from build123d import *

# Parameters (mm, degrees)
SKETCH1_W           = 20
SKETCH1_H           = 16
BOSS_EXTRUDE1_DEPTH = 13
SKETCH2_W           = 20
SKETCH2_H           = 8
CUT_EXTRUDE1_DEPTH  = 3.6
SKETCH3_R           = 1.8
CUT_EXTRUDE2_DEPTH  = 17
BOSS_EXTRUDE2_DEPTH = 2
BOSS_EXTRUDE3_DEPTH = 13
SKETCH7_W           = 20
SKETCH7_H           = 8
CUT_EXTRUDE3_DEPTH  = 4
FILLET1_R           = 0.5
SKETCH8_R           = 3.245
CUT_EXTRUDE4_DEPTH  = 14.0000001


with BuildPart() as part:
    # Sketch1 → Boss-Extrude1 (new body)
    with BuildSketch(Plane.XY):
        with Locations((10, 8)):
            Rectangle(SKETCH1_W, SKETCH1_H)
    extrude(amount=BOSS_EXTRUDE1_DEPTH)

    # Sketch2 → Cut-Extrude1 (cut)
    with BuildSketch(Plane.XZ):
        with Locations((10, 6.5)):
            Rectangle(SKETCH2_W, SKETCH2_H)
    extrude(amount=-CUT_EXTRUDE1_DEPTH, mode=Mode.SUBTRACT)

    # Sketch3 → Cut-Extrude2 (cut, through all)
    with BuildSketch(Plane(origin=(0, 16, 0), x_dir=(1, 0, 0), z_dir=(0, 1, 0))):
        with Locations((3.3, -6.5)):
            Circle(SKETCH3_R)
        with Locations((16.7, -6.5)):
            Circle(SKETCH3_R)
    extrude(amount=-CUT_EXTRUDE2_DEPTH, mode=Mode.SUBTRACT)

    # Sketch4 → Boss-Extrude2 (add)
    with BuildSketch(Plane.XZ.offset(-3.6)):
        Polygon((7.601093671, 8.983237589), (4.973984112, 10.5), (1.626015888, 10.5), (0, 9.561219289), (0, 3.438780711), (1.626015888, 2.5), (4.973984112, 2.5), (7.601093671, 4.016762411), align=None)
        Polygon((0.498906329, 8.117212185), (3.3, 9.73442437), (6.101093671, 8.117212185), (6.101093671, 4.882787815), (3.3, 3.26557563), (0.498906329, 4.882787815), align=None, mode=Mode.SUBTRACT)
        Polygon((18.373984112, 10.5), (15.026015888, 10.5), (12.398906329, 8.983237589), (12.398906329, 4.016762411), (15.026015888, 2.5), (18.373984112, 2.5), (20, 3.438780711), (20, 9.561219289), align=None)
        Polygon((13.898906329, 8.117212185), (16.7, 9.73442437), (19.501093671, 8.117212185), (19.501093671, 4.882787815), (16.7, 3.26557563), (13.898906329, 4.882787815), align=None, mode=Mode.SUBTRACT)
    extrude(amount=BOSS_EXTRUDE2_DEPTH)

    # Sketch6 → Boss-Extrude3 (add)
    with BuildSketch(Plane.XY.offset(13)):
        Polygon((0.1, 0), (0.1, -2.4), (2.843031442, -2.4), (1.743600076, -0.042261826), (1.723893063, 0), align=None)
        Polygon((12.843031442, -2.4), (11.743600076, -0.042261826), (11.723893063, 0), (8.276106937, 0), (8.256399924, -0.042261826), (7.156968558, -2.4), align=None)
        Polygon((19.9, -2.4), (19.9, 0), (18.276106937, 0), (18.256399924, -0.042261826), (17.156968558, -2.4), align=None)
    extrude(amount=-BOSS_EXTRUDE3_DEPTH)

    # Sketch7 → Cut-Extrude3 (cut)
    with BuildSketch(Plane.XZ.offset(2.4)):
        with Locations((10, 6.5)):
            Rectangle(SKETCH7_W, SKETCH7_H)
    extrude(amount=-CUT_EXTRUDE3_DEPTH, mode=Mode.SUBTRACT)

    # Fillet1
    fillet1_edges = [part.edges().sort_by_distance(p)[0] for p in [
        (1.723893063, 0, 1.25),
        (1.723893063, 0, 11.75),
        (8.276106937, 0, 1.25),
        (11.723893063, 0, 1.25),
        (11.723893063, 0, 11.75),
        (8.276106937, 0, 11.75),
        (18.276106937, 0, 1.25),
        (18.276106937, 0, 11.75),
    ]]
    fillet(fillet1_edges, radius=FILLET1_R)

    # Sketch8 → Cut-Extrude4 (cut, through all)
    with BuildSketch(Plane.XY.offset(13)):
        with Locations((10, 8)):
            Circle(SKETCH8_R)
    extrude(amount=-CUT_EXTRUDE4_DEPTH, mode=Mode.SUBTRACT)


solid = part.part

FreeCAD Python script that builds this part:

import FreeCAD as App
import Part
import Sketcher
Q = App.Units.Quantity


def edges_at(feature, points):
    """Names of the edges that pass closest to the given points."""
    edges = feature.Shape.Edges
    near = lambda p: min(range(len(edges)), key=lambda i: edges[i].distToShape(Part.Vertex(*p))[0])
    return sorted({f"Edge{near(p) + 1}" for p in points})

doc = App.newDocument("Part")
body = doc.addObject("PartDesign::Body", "Body")

sketch1 = body.newObject("Sketcher::SketchObject", "Sketch")
sketch1.AttachmentSupport = (doc.getObject("XY_Plane"), [""])
sketch1.MapMode = "FlatFace"
sketch1.addGeometry([
    Part.LineSegment(App.Vector(0, 16, 0), App.Vector(0, 0, 0)),
    Part.LineSegment(App.Vector(0, 0, 0), App.Vector(20, 0, 0)),
    Part.LineSegment(App.Vector(20, 0, 0), App.Vector(20, 16, 0)),
    Part.LineSegment(App.Vector(20, 16, 0), App.Vector(0, 16, 0)),
], False)
sketch1.addConstraint([
    Sketcher.Constraint("Coincident", 0, 2, 1, 1),
    Sketcher.Constraint("Coincident", 1, 2, 2, 1),
    Sketcher.Constraint("Coincident", 2, 2, 3, 1),
    Sketcher.Constraint("Coincident", 3, 2, 0, 1),
    Sketcher.Constraint("Vertical", 0),
    Sketcher.Constraint("Horizontal", 1),
    Sketcher.Constraint("Vertical", 2),
    Sketcher.Constraint("Horizontal", 3),
    Sketcher.Constraint("Coincident", 0, 2, -1, 1),
    Sketcher.Constraint("DistanceX", 1, 1, 1, 2, Q("20 mm")),
    Sketcher.Constraint("DistanceY", 0, 2, 0, 1, Q("16 mm")),
])
pad1 = body.newObject("PartDesign::Pad", "Pad")
pad1.Profile = sketch1
pad1.Length = 13

sketch2 = body.newObject("Sketcher::SketchObject", "Sketch001")
sketch2.AttachmentSupport = (doc.getObject("XZ_Plane"), [""])
sketch2.MapMode = "FlatFace"
sketch2.addGeometry([
    Part.LineSegment(App.Vector(0, 10.5, 0), App.Vector(0, 2.5, 0)),
    Part.LineSegment(App.Vector(0, 2.5, 0), App.Vector(20, 2.5, 0)),
    Part.LineSegment(App.Vector(20, 2.5, 0), App.Vector(20, 10.5, 0)),
    Part.LineSegment(App.Vector(20, 10.5, 0), App.Vector(0, 10.5, 0)),
], False)
sketch2.addConstraint([
    Sketcher.Constraint("Coincident", 0, 2, 1, 1),
    Sketcher.Constraint("Coincident", 1, 2, 2, 1),
    Sketcher.Constraint("Coincident", 2, 2, 3, 1),
    Sketcher.Constraint("Coincident", 3, 2, 0, 1),
    Sketcher.Constraint("Vertical", 0),
    Sketcher.Constraint("Horizontal", 1),
    Sketcher.Constraint("Vertical", 2),
    Sketcher.Constraint("Horizontal", 3),
    Sketcher.Constraint("PointOnObject", 0, 2, -2),
    Sketcher.Constraint("DistanceX", 1, 1, 1, 2, Q("20 mm")),
    Sketcher.Constraint("DistanceY", 0, 2, 0, 1, Q("8 mm")),
    Sketcher.Constraint("DistanceY", -1, 1, 0, 2, Q("2.5 mm")),
])
pocket1 = body.newObject("PartDesign::Pocket", "Pocket")
pocket1.Profile = sketch2
pocket1.Length = 3.6

sketch3 = body.newObject("Sketcher::SketchObject", "Sketch002")
sketch3.AttachmentSupport = (doc.getObject("XZ_Plane"), [""])
sketch3.MapMode = "FlatFace"
sketch3.AttachmentOffset = App.Placement(App.Vector(0, 0, -16), App.Rotation())
sketch3.addGeometry([
    Part.Circle(App.Vector(3.3, 6.5, 0), App.Vector(0, 0, 1), 1.8),
    Part.Circle(App.Vector(16.7, 6.5, 0), App.Vector(0, 0, 1), 1.8),
], False)
sketch3.addConstraint([
    Sketcher.Constraint("Equal", 0, 1),
    Sketcher.Constraint("Horizontal", 0, 3, 1, 3),
    Sketcher.Constraint("Diameter", 0, Q("3.6 mm")),
    Sketcher.Constraint("DistanceX", -1, 1, 0, 3, Q("3.3 mm")),
    Sketcher.Constraint("DistanceY", -1, 1, 0, 3, Q("6.5 mm")),
    Sketcher.Constraint("DistanceX", -1, 1, 1, 3, Q("16.7 mm")),
])
pocket2 = body.newObject("PartDesign::Pocket", "Pocket001")
pocket2.Profile = sketch3
pocket2.Type = "ThroughAll"
pocket2.Reversed = True

sketch4 = body.newObject("Sketcher::SketchObject", "Sketch003")
sketch4.AttachmentSupport = (doc.getObject("XZ_Plane"), [""])
sketch4.MapMode = "FlatFace"
sketch4.AttachmentOffset = App.Placement(App.Vector(0, 0, -3.6), App.Rotation())
sketch4.addGeometry([
    Part.LineSegment(App.Vector(7.601094, 8.983238, 0), App.Vector(4.973984, 10.5, 0)),
    Part.LineSegment(App.Vector(4.973984, 10.5, 0), App.Vector(1.626016, 10.5, 0)),
    Part.LineSegment(App.Vector(1.626016, 10.5, 0), App.Vector(0, 9.561219, 0)),
    Part.LineSegment(App.Vector(0, 9.561219, 0), App.Vector(0, 3.438781, 0)),
    Part.LineSegment(App.Vector(0, 3.438781, 0), App.Vector(1.626016, 2.5, 0)),
    Part.LineSegment(App.Vector(1.626016, 2.5, 0), App.Vector(4.973984, 2.5, 0)),
    Part.LineSegment(App.Vector(4.973984, 2.5, 0), App.Vector(7.601094, 4.016762, 0)),
    Part.LineSegment(App.Vector(7.601094, 4.016762, 0), App.Vector(7.601094, 8.983238, 0)),
    Part.LineSegment(App.Vector(0.498906, 4.882788, 0), App.Vector(0.498906, 8.117212, 0)),
    Part.LineSegment(App.Vector(0.498906, 8.117212, 0), App.Vector(3.3, 9.734424, 0)),
    Part.LineSegment(App.Vector(3.3, 9.734424, 0), App.Vector(6.101094, 8.117212, 0)),
    Part.LineSegment(App.Vector(6.101094, 8.117212, 0), App.Vector(6.101094, 4.882788, 0)),
    Part.LineSegment(App.Vector(6.101094, 4.882788, 0), App.Vector(3.3, 3.265576, 0)),
    Part.LineSegment(App.Vector(3.3, 3.265576, 0), App.Vector(0.498906, 4.882788, 0)),
    Part.LineSegment(App.Vector(18.373984, 10.5, 0), App.Vector(15.026016, 10.5, 0)),
    Part.LineSegment(App.Vector(15.026016, 10.5, 0), App.Vector(12.398906, 8.983238, 0)),
    Part.LineSegment(App.Vector(12.398906, 8.983238, 0), App.Vector(12.398906, 4.016762, 0)),
    Part.LineSegment(App.Vector(12.398906, 4.016762, 0), App.Vector(15.026016, 2.5, 0)),
    Part.LineSegment(App.Vector(15.026016, 2.5, 0), App.Vector(18.373984, 2.5, 0)),
    Part.LineSegment(App.Vector(18.373984, 2.5, 0), App.Vector(20, 3.438781, 0)),
    Part.LineSegment(App.Vector(20, 3.438781, 0), App.Vector(20, 9.561219, 0)),
    Part.LineSegment(App.Vector(20, 9.561219, 0), App.Vector(18.373984, 10.5, 0)),
    Part.LineSegment(App.Vector(13.898906, 4.882788, 0), App.Vector(13.898906, 8.117212, 0)),
    Part.LineSegment(App.Vector(13.898906, 8.117212, 0), App.Vector(16.7, 9.734424, 0)),
    Part.LineSegment(App.Vector(16.7, 9.734424, 0), App.Vector(19.501094, 8.117212, 0)),
    Part.LineSegment(App.Vector(19.501094, 8.117212, 0), App.Vector(19.501094, 4.882788, 0)),
    Part.LineSegment(App.Vector(19.501094, 4.882788, 0), App.Vector(16.7, 3.265576, 0)),
    Part.LineSegment(App.Vector(16.7, 3.265576, 0), App.Vector(13.898906, 4.882788, 0)),
], False)
sketch4.addConstraint([
    Sketcher.Constraint("Coincident", 0, 2, 1, 1),
    Sketcher.Constraint("Coincident", 1, 2, 2, 1),
    Sketcher.Constraint("Coincident", 2, 2, 3, 1),
    Sketcher.Constraint("Coincident", 3, 2, 4, 1),
    Sketcher.Constraint("Coincident", 4, 2, 5, 1),
    Sketcher.Constraint("Coincident", 5, 2, 6, 1),
    Sketcher.Constraint("Coincident", 6, 2, 7, 1),
    Sketcher.Constraint("Coincident", 7, 2, 0, 1),
    Sketcher.Constraint("Coincident", 8, 2, 9, 1),
    Sketcher.Constraint("Coincident", 9, 2, 10, 1),
    Sketcher.Constraint("Coincident", 10, 2, 11, 1),
    Sketcher.Constraint("Coincident", 11, 2, 12, 1),
    Sketcher.Constraint("Coincident", 12, 2, 13, 1),
    Sketcher.Constraint("Coincident", 13, 2, 8, 1),
    Sketcher.Constraint("Coincident", 14, 2, 15, 1),
    Sketcher.Constraint("Coincident", 15, 2, 16, 1),
    Sketcher.Constraint("Coincident", 16, 2, 17, 1),
    Sketcher.Constraint("Coincident", 17, 2, 18, 1),
    Sketcher.Constraint("Coincident", 18, 2, 19, 1),
    Sketcher.Constraint("Coincident", 19, 2, 20, 1),
    Sketcher.Constraint("Coincident", 20, 2, 21, 1),
    Sketcher.Constraint("Coincident", 21, 2, 14, 1),
    Sketcher.Constraint("Coincident", 22, 2, 23, 1),
    Sketcher.Constraint("Coincident", 23, 2, 24, 1),
    Sketcher.Constraint("Coincident", 24, 2, 25, 1),
    Sketcher.Constraint("Coincident", 25, 2, 26, 1),
    Sketcher.Constraint("Coincident", 26, 2, 27, 1),
    Sketcher.Constraint("Coincident", 27, 2, 22, 1),
    Sketcher.Constraint("Horizontal", 1),
    Sketcher.Constraint("Vertical", 3),
    Sketcher.Constraint("Horizontal", 5),
    Sketcher.Constraint("Vertical", 7),
    Sketcher.Constraint("Vertical", 8),
    Sketcher.Constraint("Vertical", 11),
    Sketcher.Constraint("Horizontal", 14),
    Sketcher.Constraint("Vertical", 16),
    Sketcher.Constraint("Horizontal", 18),
    Sketcher.Constraint("Vertical", 20),
    Sketcher.Constraint("Vertical", 22),
    Sketcher.Constraint("Vertical", 25),
    Sketcher.Constraint("PointOnObject", 2, 2, -2),
    Sketcher.Constraint("Parallel", 0, 4),
    Sketcher.Constraint("Parallel", 2, 6),
    Sketcher.Constraint("Parallel", 6, 9),
    Sketcher.Constraint("Parallel", 4, 10),
    Sketcher.Constraint("Parallel", 9, 12),
    Sketcher.Constraint("Parallel", 10, 13),
    Sketcher.Constraint("Parallel", 12, 15),
    Sketcher.Constraint("Parallel", 13, 17),
    Sketcher.Constraint("Parallel", 15, 19),
    Sketcher.Constraint("Parallel", 17, 21),
    Sketcher.Constraint("Parallel", 19, 23),
    Sketcher.Constraint("Parallel", 21, 24),
    Sketcher.Constraint("Parallel", 23, 26),
    Sketcher.Constraint("Parallel", 24, 27),
    Sketcher.Constraint("Horizontal", 8, 2, 10, 2),
    Sketcher.Constraint("Horizontal", 11, 2, 13, 2),
    Sketcher.Constraint("Horizontal", 1, 2, 14, 2),
    Sketcher.Constraint("Horizontal", 7, 2, 15, 2),
    Sketcher.Constraint("Horizontal", 6, 2, 16, 2),
    Sketcher.Constraint("Horizontal", 5, 2, 17, 2),
    Sketcher.Constraint("Horizontal", 3, 2, 19, 2),
    Sketcher.Constraint("Horizontal", 2, 2, 20, 2),
    Sketcher.Constraint("Horizontal", 10, 2, 22, 2),
    Sketcher.Constraint("Horizontal", 9, 2, 23, 2),
    Sketcher.Constraint("Horizontal", 22, 2, 24, 2),
    Sketcher.Constraint("Horizontal", 13, 2, 25, 2),
    Sketcher.Constraint("Horizontal", 12, 2, 26, 2),
    Sketcher.Constraint("Vertical", 1, 2, 4, 2),
    Sketcher.Constraint("Vertical", 0, 2, 5, 2),
    Sketcher.Constraint("Vertical", 9, 2, 12, 2),
    Sketcher.Constraint("Equal", 5, 14),
    Sketcher.Constraint("Angle", 0, Q("150 deg")),
    Sketcher.Constraint("DistanceX", -1, 1, 19, 2, Q("20 mm")),
    Sketcher.Constraint("DistanceY", 4, 2, 1, 2, Q("8 mm")),
    Sketcher.Constraint("DistanceY", -1, 1, 0, 2, Q("10.5 mm")),
    Sketcher.Constraint("DistanceX", -1, 1, 9, 2, Q("3.3 mm")),
    Sketcher.Constraint("DistanceX", -1, 1, 23, 2, Q("16.7 mm")),
    Sketcher.Constraint("DistanceX", 10, 2, 7, 2, Q("1.5 mm")),
    Sketcher.Constraint("DistanceX", 1, 2, 1, 1, Q("3.347968 mm")),
    Sketcher.Constraint("DistanceY", 3, 2, 3, 1, Q("6.122439 mm")),
    Sketcher.Constraint("DistanceY", 7, 1, 7, 2, Q("4.966475 mm")),
    Sketcher.Constraint("DistanceY", 8, 1, 8, 2, Q("3.234424 mm")),
    Sketcher.Constraint("DistanceY", 3, 2, 8, 2, Q("4.678431 mm")),
])
pad2 = body.newObject("PartDesign::Pad", "Pad001")
pad2.Profile = sketch4
pad2.Length = 2

sketch5 = body.newObject("Sketcher::SketchObject", "Sketch004")
sketch5.AttachmentSupport = (doc.getObject("XY_Plane"), [""])
sketch5.MapMode = "FlatFace"
sketch5.AttachmentOffset = App.Placement(App.Vector(0, 0, 13), App.Rotation())
sketch5.addGeometry([
    Part.LineSegment(App.Vector(0.1, 0, 0), App.Vector(0.1, -2.4, 0)),
    Part.LineSegment(App.Vector(0.1, -2.4, 0), App.Vector(2.843031, -2.4, 0)),
    Part.LineSegment(App.Vector(2.843031, -2.4, 0), App.Vector(1.7436, -0.042262, 0)),
    Part.LineSegment(App.Vector(1.7436, -0.042262, 0), App.Vector(1.723893, 0, 0)),
    Part.LineSegment(App.Vector(1.723893, 0, 0), App.Vector(0.1, 0, 0)),
    Part.LineSegment(App.Vector(12.843031, -2.4, 0), App.Vector(11.7436, -0.042262, 0)),
    Part.LineSegment(App.Vector(11.7436, -0.042262, 0), App.Vector(11.723893, 0, 0)),
    Part.LineSegment(App.Vector(11.723893, 0, 0), App.Vector(8.276107, 0, 0)),
    Part.LineSegment(App.Vector(8.276107, 0, 0), App.Vector(8.2564, -0.042262, 0)),
    Part.LineSegment(App.Vector(8.2564, -0.042262, 0), App.Vector(7.156969, -2.4, 0)),
    Part.LineSegment(App.Vector(7.156969, -2.4, 0), App.Vector(12.843031, -2.4, 0)),
    Part.LineSegment(App.Vector(19.9, -2.4, 0), App.Vector(19.9, 0, 0)),
    Part.LineSegment(App.Vector(19.9, 0, 0), App.Vector(18.276107, 0, 0)),
    Part.LineSegment(App.Vector(18.276107, 0, 0), App.Vector(18.2564, -0.042262, 0)),
    Part.LineSegment(App.Vector(18.2564, -0.042262, 0), App.Vector(17.156969, -2.4, 0)),
    Part.LineSegment(App.Vector(17.156969, -2.4, 0), App.Vector(19.9, -2.4, 0)),
], False)
sketch5.addConstraint([
    Sketcher.Constraint("Coincident", 0, 2, 1, 1),
    Sketcher.Constraint("Coincident", 1, 2, 2, 1),
    Sketcher.Constraint("Coincident", 2, 2, 3, 1),
    Sketcher.Constraint("Coincident", 3, 2, 4, 1),
    Sketcher.Constraint("Coincident", 4, 2, 0, 1),
    Sketcher.Constraint("Coincident", 5, 2, 6, 1),
    Sketcher.Constraint("Coincident", 6, 2, 7, 1),
    Sketcher.Constraint("Coincident", 7, 2, 8, 1),
    Sketcher.Constraint("Coincident", 8, 2, 9, 1),
    Sketcher.Constraint("Coincident", 9, 2, 10, 1),
    Sketcher.Constraint("Coincident", 10, 2, 5, 1),
    Sketcher.Constraint("Coincident", 11, 2, 12, 1),
    Sketcher.Constraint("Coincident", 12, 2, 13, 1),
    Sketcher.Constraint("Coincident", 13, 2, 14, 1),
    Sketcher.Constraint("Coincident", 14, 2, 15, 1),
    Sketcher.Constraint("Coincident", 15, 2, 11, 1),
    Sketcher.Constraint("Vertical", 0),
    Sketcher.Constraint("Horizontal", 1),
    Sketcher.Constraint("Horizontal", 4),
    Sketcher.Constraint("Horizontal", 7),
    Sketcher.Constraint("Horizontal", 10),
    Sketcher.Constraint("Vertical", 11),
    Sketcher.Constraint("Horizontal", 12),
    Sketcher.Constraint("Horizontal", 15),
    Sketcher.Constraint("PointOnObject", 3, 2, -1),
    Sketcher.Constraint("PointOnObject", 6, 2, -1),
    Sketcher.Constraint("PointOnObject", 11, 2, -1),
    Sketcher.Constraint("Parallel", 2, 3),
    Sketcher.Constraint("Parallel", 3, 5),
    Sketcher.Constraint("Parallel", 5, 6),
    Sketcher.Constraint("Parallel", 8, 9),
    Sketcher.Constraint("Parallel", 9, 13),
    Sketcher.Constraint("Parallel", 13, 14),
    Sketcher.Constraint("Horizontal", 2, 2, 5, 2),
    Sketcher.Constraint("Horizontal", 5, 2, 8, 2),
    Sketcher.Constraint("Horizontal", 1, 2, 9, 2),
    Sketcher.Constraint("Horizontal", 8, 2, 13, 2),
    Sketcher.Constraint("Horizontal", 10, 2, 14, 2),
    Sketcher.Constraint("Equal", 4, 12),
    Sketcher.Constraint("Equal", 1, 15),
    Sketcher.Constraint("Angle", 2, Q("115 deg")),
    Sketcher.Constraint("DistanceY", 0, 2, 0, 1, Q("2.4 mm")),
    Sketcher.Constraint("DistanceX", 2, 2, 5, 2, Q("10 mm")),
    Sketcher.Constraint("DistanceX", 7, 2, 12, 2, Q("10 mm")),
    Sketcher.Constraint("DistanceX", -1, 1, 0, 2, Q("0.1 mm")),
    Sketcher.Constraint("DistanceX", -1, 1, 11, 2, Q("19.9 mm")),
    Sketcher.Constraint("DistanceX", 1, 1, 1, 2, Q("2.743031 mm")),
    Sketcher.Constraint("DistanceX", -1, 1, 2, 2, Q("1.7436 mm")),
])
pad3 = body.newObject("PartDesign::Pad", "Pad002")
pad3.Profile = sketch5
pad3.Length = 13
pad3.Reversed = True

sketch6 = body.newObject("Sketcher::SketchObject", "Sketch005")
sketch6.AttachmentSupport = (doc.getObject("XZ_Plane"), [""])
sketch6.MapMode = "FlatFace"
sketch6.AttachmentOffset = App.Placement(App.Vector(0, 0, 2.4), App.Rotation())
sketch6.addGeometry([
    Part.LineSegment(App.Vector(0, 10.5, 0), App.Vector(0, 2.5, 0)),
    Part.LineSegment(App.Vector(0, 2.5, 0), App.Vector(20, 2.5, 0)),
    Part.LineSegment(App.Vector(20, 2.5, 0), App.Vector(20, 10.5, 0)),
    Part.LineSegment(App.Vector(20, 10.5, 0), App.Vector(0, 10.5, 0)),
], False)
sketch6.addConstraint([
    Sketcher.Constraint("Coincident", 0, 2, 1, 1),
    Sketcher.Constraint("Coincident", 1, 2, 2, 1),
    Sketcher.Constraint("Coincident", 2, 2, 3, 1),
    Sketcher.Constraint("Coincident", 3, 2, 0, 1),
    Sketcher.Constraint("Vertical", 0),
    Sketcher.Constraint("Horizontal", 1),
    Sketcher.Constraint("Vertical", 2),
    Sketcher.Constraint("Horizontal", 3),
    Sketcher.Constraint("PointOnObject", 0, 2, -2),
    Sketcher.Constraint("DistanceX", 1, 1, 1, 2, Q("20 mm")),
    Sketcher.Constraint("DistanceY", 0, 2, 0, 1, Q("8 mm")),
    Sketcher.Constraint("DistanceY", -1, 1, 0, 2, Q("2.5 mm")),
])
pocket3 = body.newObject("PartDesign::Pocket", "Pocket002")
pocket3.Profile = sketch6
pocket3.Length = 4
doc.recompute()

fillet = body.newObject("PartDesign::Fillet", "Fillet")
fillet.Base = (pocket3, edges_at(pocket3, [
    (1.724, 0, 1.25),
    (1.724, 0, 11.75),
    (8.276, 0, 1.25),
    (11.724, 0, 1.25),
    (11.724, 0, 11.75),
    (8.276, 0, 11.75),
    (18.276, 0, 1.25),
    (18.276, 0, 11.75),
]))
fillet.Radius = 0.5

sketch7 = body.newObject("Sketcher::SketchObject", "Sketch006")
sketch7.AttachmentSupport = (doc.getObject("XY_Plane"), [""])
sketch7.MapMode = "FlatFace"
sketch7.AttachmentOffset = App.Placement(App.Vector(0, 0, 13), App.Rotation())
sketch7.addGeometry(Part.Circle(App.Vector(10, 8, 0), App.Vector(0, 0, 1), 3.245), False)
sketch7.addConstraint([
    Sketcher.Constraint("Diameter", 0, Q("6.49 mm")),
    Sketcher.Constraint("DistanceX", -1, 1, 0, 3, Q("10 mm")),
    Sketcher.Constraint("DistanceY", -1, 1, 0, 3, Q("8 mm")),
])
pocket4 = body.newObject("PartDesign::Pocket", "Pocket003")
pocket4.Profile = sketch7
pocket4.Type = "ThroughAll"

doc.recompute()
